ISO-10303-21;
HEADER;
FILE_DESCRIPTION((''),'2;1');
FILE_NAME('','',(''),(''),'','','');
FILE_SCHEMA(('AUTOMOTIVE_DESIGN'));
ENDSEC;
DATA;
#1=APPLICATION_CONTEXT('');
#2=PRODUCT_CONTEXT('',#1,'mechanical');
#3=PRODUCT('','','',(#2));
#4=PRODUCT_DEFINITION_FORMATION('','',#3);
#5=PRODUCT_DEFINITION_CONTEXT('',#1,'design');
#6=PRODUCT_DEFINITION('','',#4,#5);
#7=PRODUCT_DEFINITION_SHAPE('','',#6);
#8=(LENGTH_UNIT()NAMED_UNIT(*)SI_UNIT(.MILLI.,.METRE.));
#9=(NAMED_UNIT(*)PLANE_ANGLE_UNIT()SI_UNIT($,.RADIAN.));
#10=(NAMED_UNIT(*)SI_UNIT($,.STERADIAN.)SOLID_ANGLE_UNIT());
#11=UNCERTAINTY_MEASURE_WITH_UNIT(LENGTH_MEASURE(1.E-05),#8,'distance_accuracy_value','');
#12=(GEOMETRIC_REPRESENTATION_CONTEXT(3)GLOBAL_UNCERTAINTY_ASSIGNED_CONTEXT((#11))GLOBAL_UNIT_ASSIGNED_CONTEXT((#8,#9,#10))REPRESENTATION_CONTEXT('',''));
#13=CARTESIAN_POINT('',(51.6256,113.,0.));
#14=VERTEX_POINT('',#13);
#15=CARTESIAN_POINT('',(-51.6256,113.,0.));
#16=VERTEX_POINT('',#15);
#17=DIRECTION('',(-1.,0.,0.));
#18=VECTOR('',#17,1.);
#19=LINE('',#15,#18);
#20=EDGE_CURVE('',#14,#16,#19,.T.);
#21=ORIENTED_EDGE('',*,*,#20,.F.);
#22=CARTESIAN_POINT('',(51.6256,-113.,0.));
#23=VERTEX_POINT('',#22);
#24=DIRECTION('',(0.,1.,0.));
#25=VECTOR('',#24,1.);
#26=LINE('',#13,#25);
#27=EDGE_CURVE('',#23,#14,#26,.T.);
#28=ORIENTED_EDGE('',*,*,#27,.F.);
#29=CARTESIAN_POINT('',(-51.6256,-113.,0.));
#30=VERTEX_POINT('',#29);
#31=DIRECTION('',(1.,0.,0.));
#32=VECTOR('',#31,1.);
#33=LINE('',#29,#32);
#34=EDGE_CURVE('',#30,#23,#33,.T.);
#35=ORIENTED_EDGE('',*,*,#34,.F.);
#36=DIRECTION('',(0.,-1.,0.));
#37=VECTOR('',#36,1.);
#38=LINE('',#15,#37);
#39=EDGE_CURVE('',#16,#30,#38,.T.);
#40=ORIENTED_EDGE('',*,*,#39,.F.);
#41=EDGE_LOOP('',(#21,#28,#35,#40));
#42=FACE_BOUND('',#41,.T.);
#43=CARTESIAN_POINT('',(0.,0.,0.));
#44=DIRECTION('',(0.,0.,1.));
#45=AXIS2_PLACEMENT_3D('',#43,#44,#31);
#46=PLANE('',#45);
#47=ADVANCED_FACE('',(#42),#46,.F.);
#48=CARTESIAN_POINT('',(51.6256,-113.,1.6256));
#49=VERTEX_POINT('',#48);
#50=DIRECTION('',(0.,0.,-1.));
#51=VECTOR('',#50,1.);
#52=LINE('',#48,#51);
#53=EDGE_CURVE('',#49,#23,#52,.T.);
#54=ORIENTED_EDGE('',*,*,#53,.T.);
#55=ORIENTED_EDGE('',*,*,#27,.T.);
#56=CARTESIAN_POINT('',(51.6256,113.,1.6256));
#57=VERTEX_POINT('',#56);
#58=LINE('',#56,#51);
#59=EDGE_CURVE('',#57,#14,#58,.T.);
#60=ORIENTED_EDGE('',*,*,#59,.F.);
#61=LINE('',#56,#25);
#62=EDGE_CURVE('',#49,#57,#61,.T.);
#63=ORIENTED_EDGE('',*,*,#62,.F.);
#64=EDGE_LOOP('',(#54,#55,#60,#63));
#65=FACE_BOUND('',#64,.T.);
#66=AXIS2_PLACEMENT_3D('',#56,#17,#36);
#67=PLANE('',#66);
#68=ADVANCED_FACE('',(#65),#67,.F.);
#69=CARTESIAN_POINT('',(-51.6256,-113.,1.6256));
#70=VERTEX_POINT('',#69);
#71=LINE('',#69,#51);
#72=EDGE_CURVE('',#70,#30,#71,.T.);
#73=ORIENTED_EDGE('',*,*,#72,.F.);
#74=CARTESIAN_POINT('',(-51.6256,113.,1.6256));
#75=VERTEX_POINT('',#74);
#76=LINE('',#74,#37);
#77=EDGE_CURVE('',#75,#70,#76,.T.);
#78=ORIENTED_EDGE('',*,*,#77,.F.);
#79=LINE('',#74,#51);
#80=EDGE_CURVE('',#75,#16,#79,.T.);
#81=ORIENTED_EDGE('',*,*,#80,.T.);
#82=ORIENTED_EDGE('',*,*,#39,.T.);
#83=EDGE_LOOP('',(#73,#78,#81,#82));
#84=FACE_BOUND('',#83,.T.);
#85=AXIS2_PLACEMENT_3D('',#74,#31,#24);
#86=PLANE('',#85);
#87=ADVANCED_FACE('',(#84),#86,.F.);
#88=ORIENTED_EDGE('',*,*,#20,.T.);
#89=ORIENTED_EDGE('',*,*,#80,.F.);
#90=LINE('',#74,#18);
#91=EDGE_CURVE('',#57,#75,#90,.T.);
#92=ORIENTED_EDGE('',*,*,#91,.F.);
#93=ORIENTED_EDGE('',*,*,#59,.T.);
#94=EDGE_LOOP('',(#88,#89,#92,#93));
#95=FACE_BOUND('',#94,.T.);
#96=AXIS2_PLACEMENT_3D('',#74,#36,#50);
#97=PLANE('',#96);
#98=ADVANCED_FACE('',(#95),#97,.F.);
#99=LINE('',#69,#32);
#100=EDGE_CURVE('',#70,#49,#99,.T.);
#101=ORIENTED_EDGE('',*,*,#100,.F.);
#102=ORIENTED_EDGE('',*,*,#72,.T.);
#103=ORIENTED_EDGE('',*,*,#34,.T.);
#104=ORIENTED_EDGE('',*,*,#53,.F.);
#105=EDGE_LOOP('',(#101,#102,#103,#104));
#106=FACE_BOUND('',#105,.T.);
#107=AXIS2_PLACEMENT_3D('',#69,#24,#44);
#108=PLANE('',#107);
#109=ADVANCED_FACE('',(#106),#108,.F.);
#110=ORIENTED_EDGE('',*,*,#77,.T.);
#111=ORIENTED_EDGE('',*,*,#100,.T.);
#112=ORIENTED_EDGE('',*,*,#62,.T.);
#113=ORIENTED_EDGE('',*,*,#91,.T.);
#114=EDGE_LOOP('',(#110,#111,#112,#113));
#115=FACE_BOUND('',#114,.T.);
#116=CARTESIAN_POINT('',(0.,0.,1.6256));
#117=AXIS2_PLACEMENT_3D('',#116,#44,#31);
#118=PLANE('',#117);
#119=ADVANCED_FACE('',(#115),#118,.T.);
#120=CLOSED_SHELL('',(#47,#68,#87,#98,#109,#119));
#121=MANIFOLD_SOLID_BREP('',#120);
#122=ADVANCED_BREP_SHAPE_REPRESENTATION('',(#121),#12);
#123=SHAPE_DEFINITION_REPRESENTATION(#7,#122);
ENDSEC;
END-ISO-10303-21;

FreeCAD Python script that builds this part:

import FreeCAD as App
import Part
import Sketcher
from FreeCAD import Vector
Q = App.Units.Quantity


def add_polygon(sketch, points):
    """Adds a closed chain of lines whose ends are joined by coincident constraints."""
    first, n = sketch.GeometryCount, len(points)
    for a, b in zip(points, points[1:] + points[:1]):
        sketch.addGeometry(Part.LineSegment(App.Vector(*a, 0), App.Vector(*b, 0)), False)
    for i in range(n):
        sketch.addConstraint(Sketcher.Constraint("Coincident", first + i, 2, first + (i + 1) % n, 1))

doc = App.newDocument("Part")
body = doc.addObject("PartDesign::Body", "Body")

sketch1 = body.newObject("Sketcher::SketchObject", "Sketch")
sketch1.AttachmentSupport = (doc.getObject("XY_Plane"), [""])
sketch1.MapMode = "FlatFace"
add_polygon(sketch1, [(-52, 113), (-52, -113), (52, -113), (52, 113)])
sketch1.addConstraint([
    Sketcher.Constraint("Vertical", 0),
    Sketcher.Constraint("Horizontal", 1),
    Sketcher.Constraint("Vertical", 2),
    Sketcher.Constraint("Horizontal", 3),
    Sketcher.Constraint("Symmetric", 0, 2, 2, 2, -1, 1),
    Sketcher.Constraint("DistanceY", 0, 2, 0, 1, Q("226 mm")),
    Sketcher.Constraint("DistanceX", 1, 1, 1, 2, Q("103.2512 mm")),
])
pad1 = body.newObject("PartDesign::Pad", "Pad")
pad1.Profile = sketch1
pad1.Length = 1.6256

doc.recompute()
